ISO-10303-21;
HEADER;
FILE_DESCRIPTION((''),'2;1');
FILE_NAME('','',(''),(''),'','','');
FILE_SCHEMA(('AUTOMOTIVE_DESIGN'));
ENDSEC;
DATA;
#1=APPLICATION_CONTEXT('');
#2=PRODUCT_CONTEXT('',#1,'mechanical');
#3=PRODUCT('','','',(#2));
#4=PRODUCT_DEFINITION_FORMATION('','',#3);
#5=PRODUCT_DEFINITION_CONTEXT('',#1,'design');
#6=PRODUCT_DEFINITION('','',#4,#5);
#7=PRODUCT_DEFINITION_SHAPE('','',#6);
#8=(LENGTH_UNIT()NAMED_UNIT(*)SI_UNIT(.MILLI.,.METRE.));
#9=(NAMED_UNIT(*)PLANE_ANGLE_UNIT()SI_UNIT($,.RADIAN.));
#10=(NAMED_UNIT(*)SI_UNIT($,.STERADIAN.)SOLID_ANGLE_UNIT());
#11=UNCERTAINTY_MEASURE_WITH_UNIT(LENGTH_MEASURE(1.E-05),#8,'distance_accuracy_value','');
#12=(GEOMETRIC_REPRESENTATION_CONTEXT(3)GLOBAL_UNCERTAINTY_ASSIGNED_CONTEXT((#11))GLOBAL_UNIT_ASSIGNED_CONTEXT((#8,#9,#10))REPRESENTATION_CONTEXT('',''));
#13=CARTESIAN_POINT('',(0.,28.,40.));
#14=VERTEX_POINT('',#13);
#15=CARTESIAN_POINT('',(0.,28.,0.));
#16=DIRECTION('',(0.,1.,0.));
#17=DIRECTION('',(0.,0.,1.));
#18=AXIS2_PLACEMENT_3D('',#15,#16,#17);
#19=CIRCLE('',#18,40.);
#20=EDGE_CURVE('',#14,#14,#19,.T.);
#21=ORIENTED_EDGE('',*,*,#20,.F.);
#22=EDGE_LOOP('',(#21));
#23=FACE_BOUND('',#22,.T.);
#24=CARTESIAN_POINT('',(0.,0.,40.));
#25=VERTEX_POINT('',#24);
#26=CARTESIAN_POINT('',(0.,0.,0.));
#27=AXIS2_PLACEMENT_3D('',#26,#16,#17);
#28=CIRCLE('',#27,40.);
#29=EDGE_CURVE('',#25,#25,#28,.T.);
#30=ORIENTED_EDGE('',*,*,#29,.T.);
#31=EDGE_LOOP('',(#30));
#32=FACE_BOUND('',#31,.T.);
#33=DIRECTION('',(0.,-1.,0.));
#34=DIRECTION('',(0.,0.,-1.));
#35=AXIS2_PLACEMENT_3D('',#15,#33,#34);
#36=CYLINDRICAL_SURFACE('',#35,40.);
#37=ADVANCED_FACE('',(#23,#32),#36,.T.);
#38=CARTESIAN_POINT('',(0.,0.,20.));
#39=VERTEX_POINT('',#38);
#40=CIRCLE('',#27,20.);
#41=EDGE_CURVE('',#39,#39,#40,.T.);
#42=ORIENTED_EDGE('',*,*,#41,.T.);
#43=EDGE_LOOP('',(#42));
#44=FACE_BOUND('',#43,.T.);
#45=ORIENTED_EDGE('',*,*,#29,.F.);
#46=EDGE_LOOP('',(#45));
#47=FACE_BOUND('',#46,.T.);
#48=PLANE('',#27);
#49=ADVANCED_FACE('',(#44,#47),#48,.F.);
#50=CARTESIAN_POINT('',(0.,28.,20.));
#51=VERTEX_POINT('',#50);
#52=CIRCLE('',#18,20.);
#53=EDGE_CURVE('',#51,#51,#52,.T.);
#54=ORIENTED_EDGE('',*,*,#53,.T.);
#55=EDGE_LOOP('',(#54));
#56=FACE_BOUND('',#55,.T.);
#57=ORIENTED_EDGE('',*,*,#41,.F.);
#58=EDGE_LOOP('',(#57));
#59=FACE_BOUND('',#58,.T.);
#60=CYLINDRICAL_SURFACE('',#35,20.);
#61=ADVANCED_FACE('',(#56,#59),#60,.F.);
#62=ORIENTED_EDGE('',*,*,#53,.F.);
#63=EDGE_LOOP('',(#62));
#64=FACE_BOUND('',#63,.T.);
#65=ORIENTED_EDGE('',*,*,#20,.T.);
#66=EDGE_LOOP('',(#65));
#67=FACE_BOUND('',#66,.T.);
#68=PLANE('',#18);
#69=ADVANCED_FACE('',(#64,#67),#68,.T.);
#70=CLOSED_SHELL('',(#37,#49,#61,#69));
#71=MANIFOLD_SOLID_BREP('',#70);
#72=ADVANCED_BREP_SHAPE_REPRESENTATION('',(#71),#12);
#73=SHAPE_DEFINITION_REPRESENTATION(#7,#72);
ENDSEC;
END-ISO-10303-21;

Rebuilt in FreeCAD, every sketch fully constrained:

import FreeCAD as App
import Part
import Sketcher
from FreeCAD import Vector
Q = App.Units.Quantity

doc = App.newDocument("Part")
body = doc.addObject("PartDesign::Body", "Body")

sketch1 = body.newObject("Sketcher::SketchObject", "Sketch")
sketch1.AttachmentSupport = (doc.getObject("XZ_Plane"), [""])
sketch1.MapMode = "FlatFace"
sketch1.addGeometry([
    Part.Circle(Vector(0, 0, 0), Vector(0, 0, 1), 40),
    Part.Circle(Vector(0, 0, 0), Vector(0, 0, 1), 20),
], False)
sketch1.addConstraint([
    Sketcher.Constraint("Coincident", 0, 3, -1, 1),
    Sketcher.Constraint("Coincident", 1, 3, -1, 1),
    Sketcher.Constraint("Diameter", 0, Q("80 mm")),
    Sketcher.Constraint("Diameter", 1, Q("40 mm")),
])
pad1 = body.newObject("PartDesign::Pad", "Pad")
pad1.Profile = sketch1
pad1.Length = 28
pad1.Reversed = True

doc.recompute()
